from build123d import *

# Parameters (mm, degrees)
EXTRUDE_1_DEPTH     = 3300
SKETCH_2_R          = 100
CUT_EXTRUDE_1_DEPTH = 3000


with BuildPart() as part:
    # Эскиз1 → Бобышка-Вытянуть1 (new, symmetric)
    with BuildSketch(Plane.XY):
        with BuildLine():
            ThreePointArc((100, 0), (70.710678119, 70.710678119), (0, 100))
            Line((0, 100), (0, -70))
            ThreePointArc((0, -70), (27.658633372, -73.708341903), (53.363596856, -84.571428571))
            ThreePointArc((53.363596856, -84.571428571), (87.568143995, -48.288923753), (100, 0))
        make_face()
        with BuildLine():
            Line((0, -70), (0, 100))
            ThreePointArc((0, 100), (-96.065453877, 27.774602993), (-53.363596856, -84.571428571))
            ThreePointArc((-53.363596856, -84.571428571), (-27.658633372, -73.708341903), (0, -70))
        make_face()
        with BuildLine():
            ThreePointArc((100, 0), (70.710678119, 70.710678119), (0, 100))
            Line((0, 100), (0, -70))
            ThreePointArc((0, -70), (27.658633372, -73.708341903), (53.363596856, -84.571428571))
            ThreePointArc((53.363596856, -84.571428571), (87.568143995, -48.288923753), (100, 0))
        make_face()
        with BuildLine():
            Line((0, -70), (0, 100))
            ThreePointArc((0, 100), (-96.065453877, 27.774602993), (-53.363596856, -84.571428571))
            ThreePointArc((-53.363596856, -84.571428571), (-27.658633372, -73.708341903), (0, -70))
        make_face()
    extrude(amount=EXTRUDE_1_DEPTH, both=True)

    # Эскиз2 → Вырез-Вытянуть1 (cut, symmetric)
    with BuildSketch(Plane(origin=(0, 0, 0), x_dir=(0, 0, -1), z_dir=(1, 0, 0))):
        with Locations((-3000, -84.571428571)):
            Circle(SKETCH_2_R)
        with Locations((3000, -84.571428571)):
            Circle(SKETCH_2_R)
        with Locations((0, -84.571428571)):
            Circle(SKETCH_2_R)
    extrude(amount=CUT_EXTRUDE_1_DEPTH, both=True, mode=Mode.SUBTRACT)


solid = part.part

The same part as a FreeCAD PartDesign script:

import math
import FreeCAD as App
import Part
import Sketcher

V = App.Vector

doc = App.newDocument("Part")
body = doc.addObject("PartDesign::Body", "Body")

sketch1 = body.newObject("Sketcher::SketchObject", "Sketch")
sketch1.AttachmentSupport = (doc.getObject("XY_Plane"), [""])
sketch1.MapMode = "FlatFace"
sketch1.addGeometry([
    Part.ArcOfCircle(Part.Circle(V(0, -175, 0), V(0, 0, 1), 105), math.radians(59), math.radians(90)),
    Part.ArcOfCircle(Part.Circle(V(0, 0, 0), V(0, 0, 1), 100), math.radians(-58), math.radians(0)),
    Part.ArcOfCircle(Part.Circle(V(0, 0, 0), V(0, 0, 1), 100), math.radians(0), math.radians(90)),
    Part.ArcOfCircle(Part.Circle(V(0, 0, 0), V(0, 0, 1), 100), math.radians(90), math.radians(238)),
    Part.ArcOfCircle(Part.Circle(V(0, -175, 0), V(0, 0, 1), 105), math.radians(90), math.radians(121)),
], False)
sketch1.addConstraint([
    Sketcher.Constraint("Coincident", 0, 1, 1, 1),
    Sketcher.Constraint("Tangent", 1, 2, 2, 1),
    Sketcher.Constraint("Tangent", 2, 2, 3, 1),
    Sketcher.Constraint("Coincident", 3, 2, 4, 2),
    Sketcher.Constraint("Tangent", 4, 1, 0, 2),
    Sketcher.Constraint("Coincident", 1, 3, -1, 1),
    Sketcher.Constraint("Coincident", 3, 3, -1, 1),
    Sketcher.Constraint("Equal", 0, 4),
    Sketcher.Constraint("PointOnObject", 0, 3, -2),
    Sketcher.Constraint("PointOnObject", 1, 2, -1),
    Sketcher.Constraint("PointOnObject", 2, 2, -2),
    Sketcher.Constraint("PointOnObject", 4, 1, -2),
    Sketcher.Constraint("Radius", 0, 105.0),
    Sketcher.Constraint("Radius", 1, 100.0),
    Sketcher.Constraint("DistanceY", 0, 3, -1, 1, 175.0),
])
pad1 = body.newObject("PartDesign::Pad", "Pad")
pad1.Profile = sketch1
pad1.Length = 6600
pad1.Midplane = True

sketch2 = body.newObject("Sketcher::SketchObject", "Sketch001")
sketch2.AttachmentSupport = (doc.getObject("YZ_Plane"), [""])
sketch2.MapMode = "FlatFace"
sketch2.addGeometry([
    Part.Circle(V(-85, 3000, 0), V(0, 0, 1), 100),
    Part.Circle(V(-85, -3000, 0), V(0, 0, 1), 100),
    Part.Circle(V(-85, 0, 0), V(0, 0, 1), 100),
], False)
sketch2.addConstraint([
    Sketcher.Constraint("Equal", 0, 1),
    Sketcher.Constraint("Equal", 1, 2),
    Sketcher.Constraint("Symmetric", 0, 3, 1, 3, -1),
    Sketcher.Constraint("PointOnObject", 2, 3, -1),
    Sketcher.Constraint("Vertical", 1, 3, 2, 3),
    Sketcher.Constraint("Diameter", 0, 200.0),
    Sketcher.Constraint("DistanceY", -1, 1, 0, 3, 3000.0),
    Sketcher.Constraint("DistanceX", 0, 3, -1, 1, 84.571429),
])
pocket1 = body.newObject("PartDesign::Pocket", "Pocket")
pocket1.Profile = sketch2
pocket1.Length = 6000
pocket1.Midplane = True

doc.recompute()
